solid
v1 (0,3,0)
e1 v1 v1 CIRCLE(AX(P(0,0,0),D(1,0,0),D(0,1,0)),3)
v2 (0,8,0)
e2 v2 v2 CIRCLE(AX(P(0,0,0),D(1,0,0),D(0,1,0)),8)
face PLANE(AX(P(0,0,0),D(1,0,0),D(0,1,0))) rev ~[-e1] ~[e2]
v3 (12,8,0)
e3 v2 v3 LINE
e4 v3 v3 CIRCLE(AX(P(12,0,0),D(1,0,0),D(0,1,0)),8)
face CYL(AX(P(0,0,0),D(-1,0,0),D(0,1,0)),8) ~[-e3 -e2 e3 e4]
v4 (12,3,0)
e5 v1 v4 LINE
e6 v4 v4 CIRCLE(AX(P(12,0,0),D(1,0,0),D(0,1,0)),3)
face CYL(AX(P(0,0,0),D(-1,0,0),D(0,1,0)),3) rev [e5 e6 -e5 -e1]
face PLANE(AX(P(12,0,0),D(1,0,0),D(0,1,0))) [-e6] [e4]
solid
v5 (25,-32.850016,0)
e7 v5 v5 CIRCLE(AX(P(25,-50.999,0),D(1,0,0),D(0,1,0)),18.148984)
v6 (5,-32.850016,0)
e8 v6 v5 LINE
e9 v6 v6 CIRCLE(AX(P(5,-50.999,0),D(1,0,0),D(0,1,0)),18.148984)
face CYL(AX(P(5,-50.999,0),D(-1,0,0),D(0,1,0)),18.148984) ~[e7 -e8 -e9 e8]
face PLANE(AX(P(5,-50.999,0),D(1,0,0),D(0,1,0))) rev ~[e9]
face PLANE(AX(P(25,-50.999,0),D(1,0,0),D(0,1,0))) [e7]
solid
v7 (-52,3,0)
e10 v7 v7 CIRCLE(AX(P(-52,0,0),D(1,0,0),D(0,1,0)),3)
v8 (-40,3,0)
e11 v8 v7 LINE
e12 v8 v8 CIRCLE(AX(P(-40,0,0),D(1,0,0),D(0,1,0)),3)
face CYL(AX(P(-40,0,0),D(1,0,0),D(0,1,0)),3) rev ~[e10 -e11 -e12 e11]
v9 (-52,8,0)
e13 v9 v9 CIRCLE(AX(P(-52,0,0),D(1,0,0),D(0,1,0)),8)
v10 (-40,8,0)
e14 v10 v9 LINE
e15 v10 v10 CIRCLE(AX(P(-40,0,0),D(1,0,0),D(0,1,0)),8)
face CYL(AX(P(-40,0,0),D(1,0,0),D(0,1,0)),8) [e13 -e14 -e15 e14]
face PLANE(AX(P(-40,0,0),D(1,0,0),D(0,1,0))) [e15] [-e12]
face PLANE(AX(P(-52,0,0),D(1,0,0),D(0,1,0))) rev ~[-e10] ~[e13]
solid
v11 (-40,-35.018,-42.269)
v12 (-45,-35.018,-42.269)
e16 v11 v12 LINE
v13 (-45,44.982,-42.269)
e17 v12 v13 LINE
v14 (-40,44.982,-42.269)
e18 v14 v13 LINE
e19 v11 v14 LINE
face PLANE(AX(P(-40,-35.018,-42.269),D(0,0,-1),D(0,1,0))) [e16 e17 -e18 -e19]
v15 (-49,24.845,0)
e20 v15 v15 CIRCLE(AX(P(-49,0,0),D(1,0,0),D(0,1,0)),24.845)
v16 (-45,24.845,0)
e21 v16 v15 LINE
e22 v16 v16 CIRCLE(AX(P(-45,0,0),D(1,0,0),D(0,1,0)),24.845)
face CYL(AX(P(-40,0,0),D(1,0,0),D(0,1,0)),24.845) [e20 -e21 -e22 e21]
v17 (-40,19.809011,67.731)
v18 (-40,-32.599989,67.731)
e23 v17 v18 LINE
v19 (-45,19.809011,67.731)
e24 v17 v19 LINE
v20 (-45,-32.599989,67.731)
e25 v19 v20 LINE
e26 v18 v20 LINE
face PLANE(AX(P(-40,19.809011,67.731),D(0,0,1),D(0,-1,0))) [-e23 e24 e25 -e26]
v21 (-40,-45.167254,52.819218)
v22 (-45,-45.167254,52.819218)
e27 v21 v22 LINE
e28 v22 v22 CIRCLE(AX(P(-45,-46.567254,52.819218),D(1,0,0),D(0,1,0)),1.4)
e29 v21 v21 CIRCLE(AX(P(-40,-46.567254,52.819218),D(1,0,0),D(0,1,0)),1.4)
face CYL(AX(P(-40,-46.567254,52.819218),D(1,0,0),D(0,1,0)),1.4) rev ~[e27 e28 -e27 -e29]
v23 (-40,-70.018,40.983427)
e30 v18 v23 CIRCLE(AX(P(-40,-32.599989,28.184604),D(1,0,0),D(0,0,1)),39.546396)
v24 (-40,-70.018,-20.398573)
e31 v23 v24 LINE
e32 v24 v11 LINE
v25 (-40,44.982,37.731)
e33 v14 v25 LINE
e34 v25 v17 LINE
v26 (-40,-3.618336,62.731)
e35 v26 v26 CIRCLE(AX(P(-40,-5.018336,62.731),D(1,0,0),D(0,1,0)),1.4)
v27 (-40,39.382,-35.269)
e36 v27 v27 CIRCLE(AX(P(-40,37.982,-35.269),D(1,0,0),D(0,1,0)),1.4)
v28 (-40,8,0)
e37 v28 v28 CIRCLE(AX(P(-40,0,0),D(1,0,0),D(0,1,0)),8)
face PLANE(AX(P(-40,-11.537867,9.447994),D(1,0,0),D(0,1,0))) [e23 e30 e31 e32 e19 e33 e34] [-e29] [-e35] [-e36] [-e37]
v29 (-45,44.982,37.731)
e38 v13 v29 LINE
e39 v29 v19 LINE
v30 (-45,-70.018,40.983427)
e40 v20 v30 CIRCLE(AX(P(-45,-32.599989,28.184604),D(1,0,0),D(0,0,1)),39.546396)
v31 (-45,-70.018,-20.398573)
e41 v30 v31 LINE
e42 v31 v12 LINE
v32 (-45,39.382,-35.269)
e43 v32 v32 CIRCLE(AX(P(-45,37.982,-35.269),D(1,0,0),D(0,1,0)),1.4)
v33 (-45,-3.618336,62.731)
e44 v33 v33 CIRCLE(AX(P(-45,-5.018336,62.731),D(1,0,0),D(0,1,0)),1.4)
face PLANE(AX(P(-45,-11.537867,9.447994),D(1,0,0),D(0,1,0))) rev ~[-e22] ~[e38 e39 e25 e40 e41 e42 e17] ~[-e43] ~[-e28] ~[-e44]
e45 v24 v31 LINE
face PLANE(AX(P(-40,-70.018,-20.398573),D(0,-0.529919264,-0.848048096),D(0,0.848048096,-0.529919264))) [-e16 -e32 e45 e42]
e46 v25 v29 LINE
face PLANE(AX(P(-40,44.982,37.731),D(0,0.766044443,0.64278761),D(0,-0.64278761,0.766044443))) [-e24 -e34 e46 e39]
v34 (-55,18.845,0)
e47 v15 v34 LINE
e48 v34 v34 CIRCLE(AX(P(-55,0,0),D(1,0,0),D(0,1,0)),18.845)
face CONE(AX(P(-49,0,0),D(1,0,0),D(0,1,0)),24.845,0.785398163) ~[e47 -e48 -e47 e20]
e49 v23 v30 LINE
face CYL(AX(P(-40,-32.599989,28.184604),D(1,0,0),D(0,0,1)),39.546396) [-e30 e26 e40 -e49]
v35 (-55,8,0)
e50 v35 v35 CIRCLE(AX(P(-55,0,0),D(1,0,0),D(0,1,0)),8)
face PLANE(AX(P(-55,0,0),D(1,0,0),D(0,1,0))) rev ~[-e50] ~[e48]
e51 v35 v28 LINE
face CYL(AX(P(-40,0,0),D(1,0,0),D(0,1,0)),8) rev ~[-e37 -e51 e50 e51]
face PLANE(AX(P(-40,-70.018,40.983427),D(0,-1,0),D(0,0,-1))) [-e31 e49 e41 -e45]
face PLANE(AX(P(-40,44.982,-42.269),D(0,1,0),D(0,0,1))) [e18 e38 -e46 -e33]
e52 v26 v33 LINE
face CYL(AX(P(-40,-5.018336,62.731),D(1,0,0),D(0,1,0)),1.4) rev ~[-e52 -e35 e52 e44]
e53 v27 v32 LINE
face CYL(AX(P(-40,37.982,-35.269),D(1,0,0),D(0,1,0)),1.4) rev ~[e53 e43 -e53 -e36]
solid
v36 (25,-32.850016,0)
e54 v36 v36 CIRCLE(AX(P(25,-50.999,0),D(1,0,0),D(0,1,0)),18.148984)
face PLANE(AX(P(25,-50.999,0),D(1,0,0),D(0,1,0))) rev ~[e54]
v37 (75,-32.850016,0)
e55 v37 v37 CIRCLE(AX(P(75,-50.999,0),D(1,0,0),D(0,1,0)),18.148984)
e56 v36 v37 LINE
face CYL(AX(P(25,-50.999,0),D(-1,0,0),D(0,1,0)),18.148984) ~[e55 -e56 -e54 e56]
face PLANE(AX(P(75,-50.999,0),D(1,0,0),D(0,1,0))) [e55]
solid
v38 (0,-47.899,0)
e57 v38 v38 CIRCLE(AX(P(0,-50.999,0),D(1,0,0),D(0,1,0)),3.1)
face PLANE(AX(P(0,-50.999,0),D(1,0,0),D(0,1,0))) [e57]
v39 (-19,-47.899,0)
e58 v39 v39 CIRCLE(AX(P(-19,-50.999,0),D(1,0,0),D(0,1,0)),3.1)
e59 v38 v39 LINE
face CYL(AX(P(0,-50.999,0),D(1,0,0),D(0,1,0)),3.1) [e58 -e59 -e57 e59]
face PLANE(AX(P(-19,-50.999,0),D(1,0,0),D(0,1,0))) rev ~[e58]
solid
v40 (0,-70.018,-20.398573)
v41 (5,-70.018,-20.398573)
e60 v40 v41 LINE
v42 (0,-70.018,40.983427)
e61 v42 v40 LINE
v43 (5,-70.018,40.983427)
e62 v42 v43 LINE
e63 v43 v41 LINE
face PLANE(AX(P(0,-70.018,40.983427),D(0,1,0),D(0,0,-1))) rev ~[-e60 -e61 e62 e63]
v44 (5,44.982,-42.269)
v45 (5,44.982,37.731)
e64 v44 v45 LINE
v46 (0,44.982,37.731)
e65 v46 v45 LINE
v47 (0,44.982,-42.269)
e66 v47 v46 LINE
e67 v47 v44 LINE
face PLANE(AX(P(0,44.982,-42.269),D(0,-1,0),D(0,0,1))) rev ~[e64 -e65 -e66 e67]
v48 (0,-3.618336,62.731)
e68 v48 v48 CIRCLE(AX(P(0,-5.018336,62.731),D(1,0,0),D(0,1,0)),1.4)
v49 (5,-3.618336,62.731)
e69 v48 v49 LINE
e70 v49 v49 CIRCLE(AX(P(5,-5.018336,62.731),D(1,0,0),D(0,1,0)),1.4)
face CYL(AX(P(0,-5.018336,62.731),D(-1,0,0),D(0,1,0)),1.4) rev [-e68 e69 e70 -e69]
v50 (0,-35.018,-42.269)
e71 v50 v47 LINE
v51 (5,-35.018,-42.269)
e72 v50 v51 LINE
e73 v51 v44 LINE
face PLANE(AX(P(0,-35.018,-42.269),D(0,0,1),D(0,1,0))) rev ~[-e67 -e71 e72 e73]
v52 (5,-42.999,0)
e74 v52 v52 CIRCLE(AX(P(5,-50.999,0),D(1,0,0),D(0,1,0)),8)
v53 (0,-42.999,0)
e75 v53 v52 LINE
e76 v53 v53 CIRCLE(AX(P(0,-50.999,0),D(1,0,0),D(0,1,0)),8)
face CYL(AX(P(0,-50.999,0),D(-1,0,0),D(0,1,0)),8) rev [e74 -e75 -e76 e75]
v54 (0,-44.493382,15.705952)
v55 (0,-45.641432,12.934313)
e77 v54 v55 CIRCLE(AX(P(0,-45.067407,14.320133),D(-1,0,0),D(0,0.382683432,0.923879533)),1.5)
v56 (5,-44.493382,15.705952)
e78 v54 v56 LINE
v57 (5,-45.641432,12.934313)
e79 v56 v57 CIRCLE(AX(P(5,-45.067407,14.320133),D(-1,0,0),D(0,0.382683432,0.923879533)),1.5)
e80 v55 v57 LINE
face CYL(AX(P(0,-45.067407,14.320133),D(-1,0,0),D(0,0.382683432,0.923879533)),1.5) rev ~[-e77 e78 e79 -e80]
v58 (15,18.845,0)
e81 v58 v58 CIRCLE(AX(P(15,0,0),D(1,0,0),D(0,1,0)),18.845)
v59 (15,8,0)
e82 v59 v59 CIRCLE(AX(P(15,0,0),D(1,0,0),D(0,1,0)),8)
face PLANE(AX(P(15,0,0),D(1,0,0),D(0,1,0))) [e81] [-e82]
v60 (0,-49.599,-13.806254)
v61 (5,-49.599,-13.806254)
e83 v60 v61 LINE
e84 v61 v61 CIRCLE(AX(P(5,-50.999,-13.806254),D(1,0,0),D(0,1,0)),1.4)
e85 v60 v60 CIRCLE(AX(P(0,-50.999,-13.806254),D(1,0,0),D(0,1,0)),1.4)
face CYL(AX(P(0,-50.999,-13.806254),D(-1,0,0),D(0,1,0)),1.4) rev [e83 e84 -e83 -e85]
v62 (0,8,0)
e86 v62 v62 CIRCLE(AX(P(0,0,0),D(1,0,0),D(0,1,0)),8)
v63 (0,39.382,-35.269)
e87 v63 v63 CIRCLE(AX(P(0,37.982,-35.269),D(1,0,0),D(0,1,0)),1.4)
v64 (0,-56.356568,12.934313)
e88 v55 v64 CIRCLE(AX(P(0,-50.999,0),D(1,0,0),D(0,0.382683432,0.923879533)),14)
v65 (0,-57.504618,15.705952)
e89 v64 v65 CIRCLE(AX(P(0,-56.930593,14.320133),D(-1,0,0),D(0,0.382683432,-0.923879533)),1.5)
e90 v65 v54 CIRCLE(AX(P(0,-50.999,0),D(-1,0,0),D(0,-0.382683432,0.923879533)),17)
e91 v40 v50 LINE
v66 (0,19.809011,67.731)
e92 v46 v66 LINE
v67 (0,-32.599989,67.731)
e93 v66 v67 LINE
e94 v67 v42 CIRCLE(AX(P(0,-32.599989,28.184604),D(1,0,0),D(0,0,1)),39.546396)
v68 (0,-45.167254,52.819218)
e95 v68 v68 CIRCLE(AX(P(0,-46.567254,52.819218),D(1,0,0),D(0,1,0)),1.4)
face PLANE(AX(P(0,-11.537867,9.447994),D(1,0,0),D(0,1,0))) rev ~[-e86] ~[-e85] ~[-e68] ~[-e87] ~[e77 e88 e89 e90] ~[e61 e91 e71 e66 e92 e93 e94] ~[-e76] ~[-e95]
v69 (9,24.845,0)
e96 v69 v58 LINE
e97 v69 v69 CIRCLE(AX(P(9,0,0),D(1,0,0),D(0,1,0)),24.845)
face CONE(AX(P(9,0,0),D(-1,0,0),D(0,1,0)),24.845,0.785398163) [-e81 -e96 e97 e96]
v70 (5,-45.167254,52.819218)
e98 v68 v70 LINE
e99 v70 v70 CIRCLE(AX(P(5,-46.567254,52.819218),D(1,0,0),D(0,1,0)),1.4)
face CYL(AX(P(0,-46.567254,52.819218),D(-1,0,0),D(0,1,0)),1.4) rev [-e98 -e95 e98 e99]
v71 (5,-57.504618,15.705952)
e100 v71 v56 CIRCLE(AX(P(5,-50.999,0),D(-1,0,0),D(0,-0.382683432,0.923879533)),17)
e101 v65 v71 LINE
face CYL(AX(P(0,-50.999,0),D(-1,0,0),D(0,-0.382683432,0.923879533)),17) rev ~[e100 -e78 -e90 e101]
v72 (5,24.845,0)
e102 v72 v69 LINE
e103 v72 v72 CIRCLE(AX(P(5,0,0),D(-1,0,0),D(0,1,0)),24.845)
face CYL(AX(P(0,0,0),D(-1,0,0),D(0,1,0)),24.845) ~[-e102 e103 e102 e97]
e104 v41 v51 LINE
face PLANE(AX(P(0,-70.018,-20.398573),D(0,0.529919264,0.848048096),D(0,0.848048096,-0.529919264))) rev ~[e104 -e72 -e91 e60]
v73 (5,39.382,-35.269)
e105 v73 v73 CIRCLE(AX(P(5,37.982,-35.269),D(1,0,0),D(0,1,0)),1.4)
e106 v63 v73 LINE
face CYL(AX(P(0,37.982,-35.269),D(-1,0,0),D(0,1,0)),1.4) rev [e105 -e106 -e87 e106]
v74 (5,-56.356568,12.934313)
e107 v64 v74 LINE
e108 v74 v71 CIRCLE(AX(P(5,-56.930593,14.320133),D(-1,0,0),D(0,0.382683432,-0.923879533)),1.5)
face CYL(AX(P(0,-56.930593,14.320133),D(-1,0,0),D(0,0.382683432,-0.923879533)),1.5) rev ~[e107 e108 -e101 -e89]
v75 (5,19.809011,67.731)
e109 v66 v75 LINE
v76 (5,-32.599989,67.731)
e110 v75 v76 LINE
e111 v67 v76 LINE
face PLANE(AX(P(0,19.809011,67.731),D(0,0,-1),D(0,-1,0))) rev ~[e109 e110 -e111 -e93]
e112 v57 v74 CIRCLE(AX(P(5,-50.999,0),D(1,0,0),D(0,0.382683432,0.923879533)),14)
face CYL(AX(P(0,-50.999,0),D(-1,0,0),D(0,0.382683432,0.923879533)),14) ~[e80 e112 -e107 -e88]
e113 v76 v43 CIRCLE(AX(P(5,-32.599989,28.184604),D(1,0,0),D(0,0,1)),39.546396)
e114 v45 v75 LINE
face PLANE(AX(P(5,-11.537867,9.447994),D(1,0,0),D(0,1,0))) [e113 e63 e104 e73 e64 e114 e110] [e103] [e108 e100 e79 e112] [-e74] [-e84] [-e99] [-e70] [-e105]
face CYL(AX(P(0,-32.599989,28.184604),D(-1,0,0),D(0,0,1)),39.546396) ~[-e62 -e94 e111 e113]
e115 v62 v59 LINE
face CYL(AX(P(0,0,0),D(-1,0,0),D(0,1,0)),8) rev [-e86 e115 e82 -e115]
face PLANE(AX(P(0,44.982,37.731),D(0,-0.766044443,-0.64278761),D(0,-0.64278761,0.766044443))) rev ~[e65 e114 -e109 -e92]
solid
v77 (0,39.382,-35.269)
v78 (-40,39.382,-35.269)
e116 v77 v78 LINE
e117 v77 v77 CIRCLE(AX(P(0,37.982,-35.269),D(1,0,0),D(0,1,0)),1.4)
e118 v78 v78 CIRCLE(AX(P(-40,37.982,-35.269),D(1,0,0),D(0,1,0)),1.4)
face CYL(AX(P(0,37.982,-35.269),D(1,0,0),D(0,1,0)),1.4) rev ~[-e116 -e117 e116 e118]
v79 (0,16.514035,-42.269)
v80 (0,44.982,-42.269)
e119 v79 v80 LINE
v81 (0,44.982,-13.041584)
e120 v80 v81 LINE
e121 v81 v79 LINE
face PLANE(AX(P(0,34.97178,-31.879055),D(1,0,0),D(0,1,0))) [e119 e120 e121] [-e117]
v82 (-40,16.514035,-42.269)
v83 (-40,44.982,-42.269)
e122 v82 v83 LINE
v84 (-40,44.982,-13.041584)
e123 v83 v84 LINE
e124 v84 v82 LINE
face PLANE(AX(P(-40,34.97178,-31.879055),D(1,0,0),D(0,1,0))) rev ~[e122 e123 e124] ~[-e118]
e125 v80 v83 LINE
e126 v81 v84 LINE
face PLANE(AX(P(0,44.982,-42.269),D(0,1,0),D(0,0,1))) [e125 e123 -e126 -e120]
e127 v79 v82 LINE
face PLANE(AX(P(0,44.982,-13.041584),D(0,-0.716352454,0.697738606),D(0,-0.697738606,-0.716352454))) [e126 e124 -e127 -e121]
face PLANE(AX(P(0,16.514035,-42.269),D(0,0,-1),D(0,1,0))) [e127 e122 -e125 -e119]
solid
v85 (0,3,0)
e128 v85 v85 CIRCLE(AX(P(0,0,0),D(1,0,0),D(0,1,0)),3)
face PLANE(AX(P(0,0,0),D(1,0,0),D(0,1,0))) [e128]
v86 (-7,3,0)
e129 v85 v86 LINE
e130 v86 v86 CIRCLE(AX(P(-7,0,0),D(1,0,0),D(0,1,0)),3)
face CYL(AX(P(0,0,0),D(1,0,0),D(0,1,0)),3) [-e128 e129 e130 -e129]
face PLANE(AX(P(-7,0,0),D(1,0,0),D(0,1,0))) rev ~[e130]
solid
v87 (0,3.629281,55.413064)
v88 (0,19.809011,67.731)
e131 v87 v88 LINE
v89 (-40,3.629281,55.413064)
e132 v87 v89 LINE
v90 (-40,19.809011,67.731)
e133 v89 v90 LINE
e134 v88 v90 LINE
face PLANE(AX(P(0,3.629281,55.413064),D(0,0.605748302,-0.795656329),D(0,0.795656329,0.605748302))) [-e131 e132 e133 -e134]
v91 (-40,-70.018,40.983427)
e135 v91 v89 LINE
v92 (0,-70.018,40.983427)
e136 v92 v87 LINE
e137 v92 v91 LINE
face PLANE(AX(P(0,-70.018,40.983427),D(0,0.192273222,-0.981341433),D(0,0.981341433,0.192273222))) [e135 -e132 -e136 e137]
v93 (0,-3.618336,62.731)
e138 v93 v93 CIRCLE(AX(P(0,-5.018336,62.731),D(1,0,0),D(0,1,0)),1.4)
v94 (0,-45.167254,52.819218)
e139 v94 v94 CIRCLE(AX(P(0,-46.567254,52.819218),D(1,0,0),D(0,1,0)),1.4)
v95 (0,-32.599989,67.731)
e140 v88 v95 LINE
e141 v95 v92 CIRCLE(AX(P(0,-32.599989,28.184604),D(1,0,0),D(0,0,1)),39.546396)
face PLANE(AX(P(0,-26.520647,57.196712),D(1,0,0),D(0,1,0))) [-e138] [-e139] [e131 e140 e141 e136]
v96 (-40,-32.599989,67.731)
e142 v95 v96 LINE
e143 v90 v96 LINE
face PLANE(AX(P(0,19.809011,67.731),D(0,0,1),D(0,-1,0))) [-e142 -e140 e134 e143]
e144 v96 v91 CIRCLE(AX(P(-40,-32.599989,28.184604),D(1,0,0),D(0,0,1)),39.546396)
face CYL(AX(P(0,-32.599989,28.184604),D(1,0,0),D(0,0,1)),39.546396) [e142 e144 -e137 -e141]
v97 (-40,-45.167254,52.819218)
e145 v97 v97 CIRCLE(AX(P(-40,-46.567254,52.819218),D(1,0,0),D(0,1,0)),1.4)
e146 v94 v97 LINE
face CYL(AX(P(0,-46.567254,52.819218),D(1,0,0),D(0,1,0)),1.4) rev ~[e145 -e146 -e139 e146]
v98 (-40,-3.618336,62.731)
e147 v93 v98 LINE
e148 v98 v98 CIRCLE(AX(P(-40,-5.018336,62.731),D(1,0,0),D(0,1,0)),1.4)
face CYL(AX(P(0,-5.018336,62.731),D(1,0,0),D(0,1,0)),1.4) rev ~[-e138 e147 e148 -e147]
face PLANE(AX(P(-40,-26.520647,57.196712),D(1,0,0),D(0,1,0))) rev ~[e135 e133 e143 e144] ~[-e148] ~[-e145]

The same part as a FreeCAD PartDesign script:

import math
import FreeCAD as App
import Part
import Sketcher
Q = App.Units.Quantity


def edges_at(feature, points):
    """Names of the edges that pass closest to the given points."""
    edges = feature.Shape.Edges
    near = lambda p: min(range(len(edges)), key=lambda i: edges[i].distToShape(Part.Vertex(*p))[0])
    return sorted({f"Edge{near(p) + 1}" for p in points})

doc = App.newDocument("Part")
body = doc.addObject("PartDesign::Body", "Body")

# Sketch on YZ plane
sketch1 = body.newObject("Sketcher::SketchObject", "Sketch")
sketch1.AttachmentSupport = (doc.getObject("YZ_Plane"), [""])
sketch1.MapMode = "FlatFace"
sketch1.addGeometry([
    Part.LineSegment(App.Vector(45, 37.7, 0), App.Vector(19.8, 67.7, 0)),  # 0
    Part.LineSegment(App.Vector(19.8, 67.7, 0), App.Vector(-32.6, 67.7, 0)),  # 1
    Part.ArcOfCircle(Part.Circle(App.Vector(-32.6, 28.2, 0), App.Vector(0, 0, 1), 39.5), math.radians(90), math.radians(161)),  # 2
    Part.LineSegment(App.Vector(-70, 41, 0), App.Vector(-70, -20.4, 0)),  # 3
    Part.LineSegment(App.Vector(-70, -20.4, 0), App.Vector(-35, -42.3, 0)),  # 4
    Part.LineSegment(App.Vector(-35, -42.3, 0), App.Vector(45, -42.3, 0)),  # 5
    Part.LineSegment(App.Vector(45, -42.3, 0), App.Vector(45, 37.7, 0)),  # 6
    Part.Circle(App.Vector(-51, -13.8, 0), App.Vector(0, 0, 1), 1.4),  # 7
    Part.Circle(App.Vector(-51, 0, 0), App.Vector(0, 0, 1), 8),  # 8
    Part.Circle(App.Vector(38, -35.3, 0), App.Vector(0, 0, 1), 1.4),  # 9
    Part.Circle(App.Vector(0, 0, 0), App.Vector(0, 0, 1), 8),  # 10
    Part.ArcOfCircle(Part.Circle(App.Vector(-51, 0, 0), App.Vector(0, 0, 1), 17), math.radians(68), math.radians(112)),  # 11
    Part.ArcOfCircle(Part.Circle(App.Vector(-45.1, 14.3, 0), App.Vector(0, 0, 1), 1.5), math.radians(-113), math.radians(68)),  # 12
    Part.ArcOfCircle(Part.Circle(App.Vector(-51, 0, 0), App.Vector(0, 0, 1), 14), math.radians(68), math.radians(112)),  # 13
    Part.ArcOfCircle(Part.Circle(App.Vector(-56.9, 14.3, 0), App.Vector(0, 0, 1), 1.5), math.radians(112), math.radians(293)),  # 14
    Part.Circle(App.Vector(-46.6, 52.8, 0), App.Vector(0, 0, 1), 1.4),  # 15
    Part.Circle(App.Vector(-5, 62.7, 0), App.Vector(0, 0, 1), 1.4),  # 16
], False)
sketch1.addConstraint([
    Sketcher.Constraint("Coincident", 0, 2, 1, 1),
    Sketcher.Constraint("Tangent", 1, 2, 2, 1),
    Sketcher.Constraint("Coincident", 2, 2, 3, 1),
    Sketcher.Constraint("Coincident", 3, 2, 4, 1),
    Sketcher.Constraint("Coincident", 4, 2, 5, 1),
    Sketcher.Constraint("Coincident", 5, 2, 6, 1),
    Sketcher.Constraint("Coincident", 6, 2, 0, 1),
    Sketcher.Constraint("Tangent", 11, 1, 12, 2),
    Sketcher.Constraint("Tangent", 12, 1, 13, 1),
    Sketcher.Constraint("Tangent", 13, 2, 14, 2),
    Sketcher.Constraint("Tangent", 14, 1, 11, 2),
    Sketcher.Constraint("Horizontal", 1),
    Sketcher.Constraint("Vertical", 3),
    Sketcher.Constraint("Horizontal", 5),
    Sketcher.Constraint("Vertical", 6),
    Sketcher.Constraint("Coincident", 10, 3, -1, 1),
    Sketcher.Constraint("Coincident", 11, 3, 8, 3),
    Sketcher.Constraint("Coincident", 13, 3, 8, 3),
    Sketcher.Constraint("Equal", 7, 9),
    Sketcher.Constraint("Equal", 8, 10),
    Sketcher.Constraint("Equal", 9, 15),
    Sketcher.Constraint("Equal", 15, 16),
    Sketcher.Constraint("PointOnObject", 8, 3, -1),
    Sketcher.Constraint("Horizontal", 12, 3, 14, 3),
    Sketcher.Constraint("Vertical", 7, 3, 8, 3),
    Sketcher.Constraint("Equal", 5, 6),
    Sketcher.Constraint("Diameter", 8, 16.0),
    Sketcher.Constraint("Radius", 11, 17.0),
    Sketcher.Constraint("Radius", 13, 14.0),
    Sketcher.Constraint("Diameter", 7, 2.8),
    Sketcher.Constraint("DistanceX", 5, 1, 5, 2, 80.0),
    Sketcher.Constraint("Angle", 0, Q("130 deg")),
    Sketcher.Constraint("Angle", 4, Q("-32 deg")),
    Sketcher.Constraint("DistanceY", 16, 3, 0, 2, 5.0),
    Sketcher.Constraint("DistanceX", 3, 2, 4, 2, 35.0),
    Sketcher.Constraint("DistanceX", 9, 3, 5, 2, 7.0),
    Sketcher.Constraint("DistanceY", 5, 2, 9, 3, 7.0),
    Sketcher.Constraint("DistanceY", 6, 2, 0, 2, 30.0),
    Sketcher.Constraint("DistanceX", 1, 2, 1, 1, 52.409),
    Sketcher.Constraint("DistanceY", 3, 2, 3, 1, 61.382),
    Sketcher.Constraint("DistanceX", 7, 3, -1, 1, 50.999),
    Sketcher.Constraint("DistanceX", -1, 1, 9, 3, 37.982),
    Sketcher.Constraint("DistanceY", 9, 3, -1, 1, 35.269),
    Sketcher.Constraint("DistanceY", -1, 1, 15, 3, 52.819218),
    Sketcher.Constraint("DistanceX", 11, 1, -1, 1, 44.493382),
    Sketcher.Constraint("DistanceX", 14, 3, 15, 3, 10.363339),
    Sketcher.Constraint("DistanceX", 12, 3, 16, 3, 40.049071),
    Sketcher.Constraint("DistanceY", 3, 2, 7, 3, 6.592319),
])
pad1 = body.newObject("PartDesign::Pad", "Pad")
pad1.Profile = sketch1
pad1.Length = 5

# Sketch on YZ plane
sketch2 = body.newObject("Sketcher::SketchObject", "Sketch001")
sketch2.AttachmentSupport = (doc.getObject("YZ_Plane"), [""])
sketch2.MapMode = "FlatFace"
sketch2.addGeometry([
    Part.Circle(App.Vector(0, 0, 0), App.Vector(0, 0, 1), 25),
    Part.Circle(App.Vector(0, 0, 0), App.Vector(0, 0, 1), 8),
], False)
sketch2.addConstraint([
    Sketcher.Constraint("Coincident", 0, 3, -1, 1),
    Sketcher.Constraint("Coincident", 1, 3, -1, 1),
    Sketcher.Constraint("Diameter", 1, 16.0),
    Sketcher.Constraint("Diameter", 0, 49.69),
])
pad2 = body.newObject("PartDesign::Pad", "Pad001")
pad2.Profile = sketch2
pad2.Length = 15
doc.recompute()

chamfer = body.newObject("PartDesign::Chamfer", "Chamfer")
chamfer.Base = (pad2, edges_at(pad2, [(15, -24.845, 0)]))
chamfer.Size = 6
body2 = doc.addObject("PartDesign::Body", "Body001")

# Sketch on YZ plane
sketch3 = body2.newObject("Sketcher::SketchObject", "Sketch002")
sketch3.AttachmentSupport = (doc.getObject("YZ_Plane001"), [""])
sketch3.MapMode = "FlatFace"
sketch3.AttachmentOffset = App.Placement(App.Vector(0, 0, -40), App.Rotation())
sketch3.addGeometry([
    Part.LineSegment(App.Vector(45, 37.7, 0), App.Vector(19.8, 67.7, 0)),  # 0
    Part.LineSegment(App.Vector(19.8, 67.7, 0), App.Vector(-32.6, 67.7, 0)),  # 1
    Part.ArcOfCircle(Part.Circle(App.Vector(-32.6, 28.2, 0), App.Vector(0, 0, 1), 39.5), math.radians(90), math.radians(161)),  # 2
    Part.LineSegment(App.Vector(-70, 41, 0), App.Vector(-70, -20.4, 0)),  # 3
    Part.LineSegment(App.Vector(-70, -20.4, 0), App.Vector(-35, -42.3, 0)),  # 4
    Part.LineSegment(App.Vector(-35, -42.3, 0), App.Vector(45, -42.3, 0)),  # 5
    Part.LineSegment(App.Vector(45, -42.3, 0), App.Vector(45, 37.7, 0)),  # 6
    Part.Circle(App.Vector(38, -35.3, 0), App.Vector(0, 0, 1), 1.4),  # 7
    Part.Circle(App.Vector(0, 0, 0), App.Vector(0, 0, 1), 8),  # 8
    Part.Circle(App.Vector(-46.6, 52.8, 0), App.Vector(0, 0, 1), 1.4),  # 9
    Part.Circle(App.Vector(-5, 62.7, 0), App.Vector(0, 0, 1), 1.4),  # 10
], False)
sketch3.addConstraint([
    Sketcher.Constraint("Coincident", 0, 2, 1, 1),
    Sketcher.Constraint("Tangent", 1, 2, 2, 1),
    Sketcher.Constraint("Coincident", 2, 2, 3, 1),
    Sketcher.Constraint("Coincident", 3, 2, 4, 1),
    Sketcher.Constraint("Coincident", 4, 2, 5, 1),
    Sketcher.Constraint("Coincident", 5, 2, 6, 1),
    Sketcher.Constraint("Coincident", 6, 2, 0, 1),
    Sketcher.Constraint("Horizontal", 1),
    Sketcher.Constraint("Vertical", 3),
    Sketcher.Constraint("Horizontal", 5),
    Sketcher.Constraint("Vertical", 6),
    Sketcher.Constraint("Coincident", 8, 3, -1, 1),
    Sketcher.Constraint("Equal", 7, 9),
    Sketcher.Constraint("Equal", 9, 10),
    Sketcher.Constraint("Equal", 5, 6),
    Sketcher.Constraint("Diameter", 8, 16.0),
    Sketcher.Constraint("Diameter", 7, 2.8),
    Sketcher.Constraint("DistanceX", 5, 1, 5, 2, 80.0),
    Sketcher.Constraint("Angle", 0, Q("130 deg")),
    Sketcher.Constraint("Angle", 4, Q("-32 deg")),
    Sketcher.Constraint("DistanceY", 7, 3, 10, 3, 98.0),
    Sketcher.Constraint("DistanceY", 10, 3, 0, 2, 5.0),
    Sketcher.Constraint("DistanceX", 3, 2, 4, 2, 35.0),
    Sketcher.Constraint("DistanceX", 4, 2, 7, 3, 73.0),
    Sketcher.Constraint("DistanceY", 4, 2, 7, 3, 7.0),
    Sketcher.Constraint("DistanceX", 1, 2, 1, 1, 52.409),
    Sketcher.Constraint("DistanceY", 3, 2, 3, 1, 61.382),
    Sketcher.Constraint("DistanceX", -1, 1, 7, 3, 37.982),
    Sketcher.Constraint("DistanceY", 7, 3, -1, 1, 35.269),
    Sketcher.Constraint("DistanceY", -1, 1, 9, 3, 52.819218),
    Sketcher.Constraint("DistanceX", 9, 3, -1, 1, 46.567254),
    Sketcher.Constraint("DistanceX", 10, 3, -1, 1, 5.018336),
])
pad3 = body2.newObject("PartDesign::Pad", "Pad002")
pad3.Profile = sketch3
pad3.Length = 5
pad3.Reversed = True

# Sketch on YZ plane
sketch4 = body2.newObject("Sketcher::SketchObject", "Sketch003")
sketch4.AttachmentSupport = (doc.getObject("YZ_Plane001"), [""])
sketch4.MapMode = "FlatFace"
sketch4.AttachmentOffset = App.Placement(App.Vector(0, 0, -40), App.Rotation())
sketch4.addGeometry([
    Part.Circle(App.Vector(0, 0, 0), App.Vector(0, 0, 1), 25),
    Part.Circle(App.Vector(0, 0, 0), App.Vector(0, 0, 1), 8),
], False)
sketch4.addConstraint([
    Sketcher.Constraint("Coincident", 0, 3, -1, 1),
    Sketcher.Constraint("Coincident", 1, 3, -1, 1),
    Sketcher.Constraint("Diameter", 1, 16.0),
    Sketcher.Constraint("Diameter", 0, 49.69),
])
pad4 = body2.newObject("PartDesign::Pad", "Pad003")
pad4.Profile = sketch4
pad4.Length = 15
pad4.Reversed = True
doc.recompute()

chamfer2 = body2.newObject("PartDesign::Chamfer", "Chamfer001")
chamfer2.Base = (pad4, edges_at(pad4, [(-55, -24.845, 0)]))
chamfer2.Size = 6
body3 = doc.addObject("PartDesign::Body", "Body002")

# Sketch on YZ plane
sketch5 = body3.newObject("Sketcher::SketchObject", "Sketch004")
sketch5.AttachmentSupport = (doc.getObject("YZ_Plane002"), [""])
sketch5.MapMode = "FlatFace"
sketch5.addGeometry([
    Part.LineSegment(App.Vector(19.8, 67.7, 0), App.Vector(-32.6, 67.7, 0)),  # 0
    Part.ArcOfCircle(Part.Circle(App.Vector(-32.6, 28.2, 0), App.Vector(0, 0, 1), 39.5), math.radians(90), math.radians(161)),  # 1
    Part.LineSegment(App.Vector(-70, 41, 0), App.Vector(3.6, 55.4, 0)),  # 2
    Part.LineSegment(App.Vector(3.6, 55.4, 0), App.Vector(19.8, 67.7, 0)),  # 3
    Part.Circle(App.Vector(-46.6, 52.8, 0), App.Vector(0, 0, 1), 1.4),  # 4
    Part.Circle(App.Vector(-5, 62.7, 0), App.Vector(0, 0, 1), 1.4),  # 5
], False)
sketch5.addConstraint([
    Sketcher.Constraint("Tangent", 0, 2, 1, 1),
    Sketcher.Constraint("Coincident", 1, 2, 2, 1),
    Sketcher.Constraint("Coincident", 2, 2, 3, 1),
    Sketcher.Constraint("Coincident", 3, 2, 0, 1),
    Sketcher.Constraint("Horizontal", 0),
    Sketcher.Constraint("Equal", 4, 5),
    Sketcher.Constraint("Diameter", 4, 2.8),
    Sketcher.Constraint("DistanceY", 5, 3, 0, 2, 5.0),
    Sketcher.Constraint("DistanceX", 0, 2, 0, 1, 52.409),
    Sketcher.Constraint("DistanceY", -1, 1, 5, 3, 62.731),
    Sketcher.Constraint("DistanceX", 1, 2, -1, 1, 70.018),
    Sketcher.Constraint("Radius", 1, 39.546396),
    Sketcher.Constraint("Distance", 2, 75.047561),
    Sketcher.Constraint("DistanceX", 1, 3, -1, 1, 32.599989),
    Sketcher.Constraint("DistanceY", -1, 1, 4, 3, 52.819218),
    Sketcher.Constraint("DistanceX", -1, 1, 2, 2, 3.629281),
    Sketcher.Constraint("DistanceX", 4, 3, -1, 1, 46.567254),
    Sketcher.Constraint("DistanceX", 5, 3, -1, 1, 5.018336),
])
pad5 = body3.newObject("PartDesign::Pad", "Pad004")
pad5.Profile = sketch5
pad5.Length = 40
pad5.Reversed = True
body4 = doc.addObject("PartDesign::Body", "Body003")

# Sketch on YZ plane
sketch6 = body4.newObject("Sketcher::SketchObject", "Sketch005")
sketch6.AttachmentSupport = (doc.getObject("YZ_Plane003"), [""])
sketch6.MapMode = "FlatFace"
sketch6.addGeometry([
    Part.LineSegment(App.Vector(45, -42.3, 0), App.Vector(45, -13, 0)),
    Part.LineSegment(App.Vector(45, -13, 0), App.Vector(16.5, -42.3, 0)),
    Part.LineSegment(App.Vector(16.5, -42.3, 0), App.Vector(45, -42.3, 0)),
    Part.Circle(App.Vector(38, -35.3, 0), App.Vector(0, 0, 1), 1.4),
], False)
sketch6.addConstraint([
    Sketcher.Constraint("Coincident", 0, 2, 1, 1),
    Sketcher.Constraint("Coincident", 1, 2, 2, 1),
    Sketcher.Constraint("Coincident", 2, 2, 0, 1),
    Sketcher.Constraint("Vertical", 0),
    Sketcher.Constraint("Horizontal", 2),
    Sketcher.Constraint("Diameter", 3, 2.8),
    Sketcher.Constraint("DistanceX", 3, 3, 0, 2, 7.0),
    Sketcher.Constraint("DistanceY", 1, 2, 3, 3, 7.0),
    Sketcher.Constraint("DistanceX", -1, 1, 3, 3, 37.982),
    Sketcher.Constraint("DistanceY", 3, 3, -1, 1, 35.269),
    Sketcher.Constraint("Distance", 1, 40.80033),
    Sketcher.Constraint("DistanceX", 2, 1, 2, 2, 28.467965),
])
pad6 = body4.newObject("PartDesign::Pad", "Pad005")
pad6.Profile = sketch6
pad6.Length = 40
pad6.Reversed = True
body5 = doc.addObject("PartDesign::Body", "Body004")

# Sketch on YZ plane
sketch7 = body5.newObject("Sketcher::SketchObject", "Sketch006")
sketch7.AttachmentSupport = (doc.getObject("YZ_Plane004"), [""])
sketch7.MapMode = "FlatFace"
sketch7.addGeometry(Part.Circle(App.Vector(0, 0, 0), App.Vector(0, 0, 1), 3), False)
sketch7.addConstraint([
    Sketcher.Constraint("Coincident", 0, 3, -1, 1),
    Sketcher.Constraint("Diameter", 0, 6.0),
])
pad7 = body5.newObject("PartDesign::Pad", "Pad006")
pad7.Profile = sketch7
pad7.Length = 7
pad7.Reversed = True
body6 = doc.addObject("PartDesign::Body", "Body005")

# Sketch on YZ plane
sketch8 = body6.newObject("Sketcher::SketchObject", "Sketch007")
sketch8.AttachmentSupport = (doc.getObject("YZ_Plane005"), [""])
sketch8.MapMode = "FlatFace"
sketch8.addGeometry(Part.Circle(App.Vector(-51, 0, 0), App.Vector(0, 0, 1), 3.1), False)
sketch8.addConstraint([
    Sketcher.Constraint("PointOnObject", 0, 3, -1),
    Sketcher.Constraint("Diameter", 0, 6.2),
    Sketcher.Constraint("DistanceX", 0, 3, -1, 1, 50.999),
])
pad8 = body6.newObject("PartDesign::Pad", "Pad007")
pad8.Profile = sketch8
pad8.Length = 19
pad8.Reversed = True
body7 = doc.addObject("PartDesign::Body", "Body006")

# Sketch on YZ plane
sketch9 = body7.newObject("Sketcher::SketchObject", "Sketch008")
sketch9.AttachmentSupport = (doc.getObject("YZ_Plane006"), [""])
sketch9.MapMode = "FlatFace"
sketch9.addGeometry([
    Part.Circle(App.Vector(0, 0, 0), App.Vector(0, 0, 1), 8),
    Part.Circle(App.Vector(0, 0, 0), App.Vector(0, 0, 1), 3),
], False)
sketch9.addConstraint([
    Sketcher.Constraint("Coincident", 0, 3, -1, 1),
    Sketcher.Constraint("Coincident", 1, 3, -1, 1),
    Sketcher.Constraint("Diameter", 0, 16.0),
    Sketcher.Constraint("Diameter", 1, 6.0),
])
pad9 = body7.newObject("PartDesign::Pad", "Pad008")
pad9.Profile = sketch9
pad9.Length = 12
body8 = doc.addObject("PartDesign::Body", "Body007")

# Sketch on YZ plane
sketch10 = body8.newObject("Sketcher::SketchObject", "Sketch009")
sketch10.AttachmentSupport = (doc.getObject("YZ_Plane007"), [""])
sketch10.MapMode = "FlatFace"
sketch10.AttachmentOffset = App.Placement(App.Vector(0, 0, -40), App.Rotation())
sketch10.addGeometry([
    Part.Circle(App.Vector(0, 0, 0), App.Vector(0, 0, 1), 8),
    Part.Circle(App.Vector(0, 0, 0), App.Vector(0, 0, 1), 3),
], False)
sketch10.addConstraint([
    Sketcher.Constraint("Coincident", 0, 3, -1, 1),
    Sketcher.Constraint("Coincident", 1, 3, -1, 1),
    Sketcher.Constraint("Diameter", 0, 16.0),
    Sketcher.Constraint("Diameter", 1, 6.0),
])
pad10 = body8.newObject("PartDesign::Pad", "Pad009")
pad10.Profile = sketch10
pad10.Length = 12
pad10.Reversed = True
body9 = doc.addObject("PartDesign::Body", "Body008")

# Sketch on YZ plane
sketch11 = body9.newObject("Sketcher::SketchObject", "Sketch010")
sketch11.AttachmentSupport = (doc.getObject("YZ_Plane008"), [""])
sketch11.MapMode = "FlatFace"
sketch11.AttachmentOffset = App.Placement(App.Vector(0, 0, 5), App.Rotation())
sketch11.addGeometry(Part.Circle(App.Vector(-51, 0, 0), App.Vector(0, 0, 1), 18), False)
sketch11.addConstraint([
    Sketcher.Constraint("PointOnObject", 0, 3, -1),
    Sketcher.Constraint("Diameter", 0, 36.297967),
    Sketcher.Constraint("DistanceX", 0, 3, -1, 1, 50.999),
])
pad11 = body9.newObject("PartDesign::Pad", "Pad010")
pad11.Profile = sketch11
pad11.Length = 20
body10 = doc.addObject("PartDesign::Body", "Body009")

# Sketch on YZ plane
sketch12 = body10.newObject("Sketcher::SketchObject", "Sketch011")
sketch12.AttachmentSupport = (doc.getObject("YZ_Plane009"), [""])
sketch12.MapMode = "FlatFace"
sketch12.AttachmentOffset = App.Placement(App.Vector(0, 0, 25), App.Rotation())
sketch12.addGeometry(Part.Circle(App.Vector(-51, 0, 0), App.Vector(0, 0, 1), 18), False)
sketch12.addConstraint([
    Sketcher.Constraint("PointOnObject", 0, 3, -1),
    Sketcher.Constraint("Diameter", 0, 36.297967),
    Sketcher.Constraint("DistanceX", 0, 3, -1, 1, 50.999),
])
pad12 = body10.newObject("PartDesign::Pad", "Pad011")
pad12.Profile = sketch12
pad12.Length = 50

doc.recompute()
